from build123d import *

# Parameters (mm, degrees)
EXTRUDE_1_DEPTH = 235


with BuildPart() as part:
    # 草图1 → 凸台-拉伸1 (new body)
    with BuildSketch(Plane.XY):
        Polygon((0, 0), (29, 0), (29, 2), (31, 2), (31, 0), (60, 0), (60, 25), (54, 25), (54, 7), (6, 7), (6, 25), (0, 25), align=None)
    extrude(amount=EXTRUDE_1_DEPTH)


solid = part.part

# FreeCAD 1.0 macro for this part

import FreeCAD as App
import Part
import Sketcher

doc = App.newDocument("Part")
params = doc.addObject("Spreadsheet::Sheet", "Params")
for row, (alias, value) in enumerate([
    ("sketch1_width", "29 mm"),
    ("sketch1_width2", "2 mm"),
    ("sketch1_width3", "6 mm"),
    ("sketch1_height", "25 mm"),
    ("sketch1_height2", "18 mm"),
    ("pad1_length", "235 mm"),
], start=1):
    params.set(f"A{row}", alias)
    params.set(f"B{row}", "=" + value)
    params.setAlias(f"B{row}", alias)

body = doc.addObject("PartDesign::Body", "Body")

sketch1 = doc.addObject("Sketcher::SketchObject", "Sketch")
body.addObject(sketch1)
sketch1.AttachmentSupport = (doc.XY_Plane, [""])
sketch1.MapMode = "FlatFace"
sketch1.addGeometry([
    Part.LineSegment(App.Vector(0, 0, 0), App.Vector(29, 0, 0)),
    Part.LineSegment(App.Vector(29, 0, 0), App.Vector(29, 2, 0)),
    Part.LineSegment(App.Vector(29, 2, 0), App.Vector(31, 2, 0)),
    Part.LineSegment(App.Vector(31, 2, 0), App.Vector(31, 0, 0)),
    Part.LineSegment(App.Vector(31, 0, 0), App.Vector(60, 0, 0)),
    Part.LineSegment(App.Vector(60, 0, 0), App.Vector(60, 25, 0)),
    Part.LineSegment(App.Vector(60, 25, 0), App.Vector(54, 25, 0)),
    Part.LineSegment(App.Vector(54, 25, 0), App.Vector(54, 7, 0)),
    Part.LineSegment(App.Vector(54, 7, 0), App.Vector(6, 7, 0)),
    Part.LineSegment(App.Vector(6, 7, 0), App.Vector(6, 25, 0)),
    Part.LineSegment(App.Vector(6, 25, 0), App.Vector(0, 25, 0)),
    Part.LineSegment(App.Vector(0, 25, 0), App.Vector(0, 0, 0)),
], False)
sketch1.addConstraint([
    Sketcher.Constraint("Coincident", 0, 2, 1, 1),
    Sketcher.Constraint("Coincident", 1, 2, 2, 1),
    Sketcher.Constraint("Coincident", 2, 2, 3, 1),
    Sketcher.Constraint("Coincident", 3, 2, 4, 1),
    Sketcher.Constraint("Coincident", 4, 2, 5, 1),
    Sketcher.Constraint("Coincident", 5, 2, 6, 1),
    Sketcher.Constraint("Coincident", 6, 2, 7, 1),
    Sketcher.Constraint("Coincident", 7, 2, 8, 1),
    Sketcher.Constraint("Coincident", 8, 2, 9, 1),
    Sketcher.Constraint("Coincident", 9, 2, 10, 1),
    Sketcher.Constraint("Coincident", 10, 2, 11, 1),
    Sketcher.Constraint("Coincident", 11, 2, 0, 1),
    Sketcher.Constraint("Horizontal", 0),
    Sketcher.Constraint("Vertical", 1),
    Sketcher.Constraint("Horizontal", 2),
    Sketcher.Constraint("Vertical", 3),
    Sketcher.Constraint("Horizontal", 4),
    Sketcher.Constraint("Vertical", 5),
    Sketcher.Constraint("Horizontal", 6),
    Sketcher.Constraint("Vertical", 7),
    Sketcher.Constraint("Horizontal", 8),
    Sketcher.Constraint("Vertical", 9),
    Sketcher.Constraint("Horizontal", 10),
    Sketcher.Constraint("Vertical", 11),
    Sketcher.Constraint("Coincident", 11, 2, -1, 1),
    Sketcher.Constraint("PointOnObject", 3, 2, -1),
    Sketcher.Constraint("Horizontal", 6, 2, 9, 2),
    Sketcher.Constraint("Equal", 0, 4),
    Sketcher.Constraint("Equal", 6, 10),
    Sketcher.Constraint("Equal", 2, 1),
    Sketcher.Constraint("DistanceX", 0, 1, 0, 2, 29.0),
    Sketcher.Constraint("DistanceX", 2, 1, 2, 2, 2.0),
    Sketcher.Constraint("DistanceX", 6, 2, 6, 1, 6.0),
    Sketcher.Constraint("DistanceY", 5, 1, 5, 2, 25.0),
    Sketcher.Constraint("DistanceY", 7, 2, 7, 1, 18.0),
])
sketch1.setExpression("Constraints[30]", "Params.sketch1_width")
sketch1.setExpression("Constraints[31]", "Params.sketch1_width2")
sketch1.setExpression("Constraints[32]", "Params.sketch1_width3")
sketch1.setExpression("Constraints[33]", "Params.sketch1_height")
sketch1.setExpression("Constraints[34]", "Params.sketch1_height2")
pad1 = doc.addObject("PartDesign::Pad", "Pad")
body.addObject(pad1)
pad1.Profile = sketch1
pad1.setExpression("Length", "Params.pad1_length")

doc.recompute()
